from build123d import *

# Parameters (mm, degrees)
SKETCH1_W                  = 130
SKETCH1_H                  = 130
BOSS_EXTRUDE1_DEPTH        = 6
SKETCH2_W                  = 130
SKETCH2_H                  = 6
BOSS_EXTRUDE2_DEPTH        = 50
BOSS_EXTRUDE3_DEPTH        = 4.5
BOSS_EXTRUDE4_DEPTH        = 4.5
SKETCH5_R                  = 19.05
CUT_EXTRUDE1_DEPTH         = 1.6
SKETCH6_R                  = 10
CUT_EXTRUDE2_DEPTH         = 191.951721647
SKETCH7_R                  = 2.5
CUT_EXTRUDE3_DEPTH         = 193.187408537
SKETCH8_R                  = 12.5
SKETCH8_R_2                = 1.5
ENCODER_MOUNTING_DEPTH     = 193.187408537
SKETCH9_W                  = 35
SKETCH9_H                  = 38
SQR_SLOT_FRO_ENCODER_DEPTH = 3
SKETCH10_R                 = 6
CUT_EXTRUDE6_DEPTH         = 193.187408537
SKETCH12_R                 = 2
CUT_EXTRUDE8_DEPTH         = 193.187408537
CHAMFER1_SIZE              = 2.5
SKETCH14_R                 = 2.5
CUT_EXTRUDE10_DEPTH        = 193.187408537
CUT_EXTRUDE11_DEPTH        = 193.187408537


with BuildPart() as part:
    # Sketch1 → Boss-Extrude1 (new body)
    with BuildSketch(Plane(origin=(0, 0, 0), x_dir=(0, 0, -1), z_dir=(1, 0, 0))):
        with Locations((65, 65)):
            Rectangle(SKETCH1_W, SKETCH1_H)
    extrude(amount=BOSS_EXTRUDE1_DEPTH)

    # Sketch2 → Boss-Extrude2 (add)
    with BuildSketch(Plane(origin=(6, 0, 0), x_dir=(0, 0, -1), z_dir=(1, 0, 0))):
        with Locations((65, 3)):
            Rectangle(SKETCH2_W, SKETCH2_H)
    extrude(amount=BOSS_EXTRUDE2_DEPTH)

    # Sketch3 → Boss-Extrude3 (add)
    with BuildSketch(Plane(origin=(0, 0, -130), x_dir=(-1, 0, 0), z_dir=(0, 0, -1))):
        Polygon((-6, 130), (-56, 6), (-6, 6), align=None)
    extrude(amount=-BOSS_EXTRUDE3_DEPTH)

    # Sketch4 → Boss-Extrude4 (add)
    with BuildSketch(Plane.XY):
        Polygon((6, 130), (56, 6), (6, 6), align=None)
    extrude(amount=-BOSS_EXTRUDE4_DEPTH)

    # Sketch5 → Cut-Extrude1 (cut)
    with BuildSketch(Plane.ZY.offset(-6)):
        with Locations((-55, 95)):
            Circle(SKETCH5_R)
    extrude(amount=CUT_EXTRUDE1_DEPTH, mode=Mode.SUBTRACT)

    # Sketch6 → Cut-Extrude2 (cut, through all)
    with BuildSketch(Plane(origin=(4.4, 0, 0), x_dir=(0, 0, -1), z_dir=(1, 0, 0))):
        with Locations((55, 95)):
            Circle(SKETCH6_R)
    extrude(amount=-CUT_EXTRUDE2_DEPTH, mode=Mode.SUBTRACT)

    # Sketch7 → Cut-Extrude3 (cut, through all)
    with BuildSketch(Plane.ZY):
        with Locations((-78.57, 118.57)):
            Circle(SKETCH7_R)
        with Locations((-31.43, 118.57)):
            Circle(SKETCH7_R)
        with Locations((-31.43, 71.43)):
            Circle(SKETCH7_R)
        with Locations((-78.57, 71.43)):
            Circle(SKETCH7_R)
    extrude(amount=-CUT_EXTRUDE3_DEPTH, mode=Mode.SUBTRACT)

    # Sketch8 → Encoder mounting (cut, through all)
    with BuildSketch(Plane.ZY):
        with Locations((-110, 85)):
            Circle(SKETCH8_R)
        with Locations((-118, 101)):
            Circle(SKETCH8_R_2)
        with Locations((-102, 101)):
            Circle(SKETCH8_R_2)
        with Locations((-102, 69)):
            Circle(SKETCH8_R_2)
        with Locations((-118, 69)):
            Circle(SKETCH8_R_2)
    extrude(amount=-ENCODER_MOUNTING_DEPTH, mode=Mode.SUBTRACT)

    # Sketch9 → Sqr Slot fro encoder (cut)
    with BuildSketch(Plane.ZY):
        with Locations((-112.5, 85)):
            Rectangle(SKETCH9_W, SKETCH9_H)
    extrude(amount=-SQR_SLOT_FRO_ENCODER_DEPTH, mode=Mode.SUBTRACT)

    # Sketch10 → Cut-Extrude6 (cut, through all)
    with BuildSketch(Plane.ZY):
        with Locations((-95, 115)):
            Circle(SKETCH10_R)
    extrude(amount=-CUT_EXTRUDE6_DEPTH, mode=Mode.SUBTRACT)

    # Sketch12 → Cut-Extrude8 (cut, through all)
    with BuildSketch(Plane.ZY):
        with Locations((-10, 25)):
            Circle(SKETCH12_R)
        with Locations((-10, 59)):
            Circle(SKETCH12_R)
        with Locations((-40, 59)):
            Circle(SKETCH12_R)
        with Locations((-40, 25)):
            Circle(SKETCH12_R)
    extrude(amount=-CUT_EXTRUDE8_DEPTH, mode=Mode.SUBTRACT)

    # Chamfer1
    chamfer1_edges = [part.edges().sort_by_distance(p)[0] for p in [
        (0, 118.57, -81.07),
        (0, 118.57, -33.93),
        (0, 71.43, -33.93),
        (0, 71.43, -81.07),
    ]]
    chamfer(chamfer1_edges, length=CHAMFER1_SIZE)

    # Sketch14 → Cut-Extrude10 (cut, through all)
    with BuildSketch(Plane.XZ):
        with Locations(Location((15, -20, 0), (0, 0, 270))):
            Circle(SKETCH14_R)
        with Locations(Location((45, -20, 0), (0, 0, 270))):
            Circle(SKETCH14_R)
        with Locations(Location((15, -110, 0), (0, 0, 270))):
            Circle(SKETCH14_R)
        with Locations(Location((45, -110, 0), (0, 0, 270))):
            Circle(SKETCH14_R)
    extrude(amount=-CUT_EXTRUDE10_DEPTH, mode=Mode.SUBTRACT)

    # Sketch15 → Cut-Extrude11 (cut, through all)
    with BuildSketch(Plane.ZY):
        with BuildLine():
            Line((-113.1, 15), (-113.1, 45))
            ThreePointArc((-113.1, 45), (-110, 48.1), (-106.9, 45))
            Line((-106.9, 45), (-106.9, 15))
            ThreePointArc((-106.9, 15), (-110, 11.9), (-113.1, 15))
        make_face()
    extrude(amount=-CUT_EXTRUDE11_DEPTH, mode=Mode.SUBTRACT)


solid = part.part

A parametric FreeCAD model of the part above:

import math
import FreeCAD as App
import Part
import Sketcher

V = App.Vector


def edges_at(feature, points):
    """Names of the edges that pass closest to the given points."""
    edges = feature.Shape.Edges
    near = lambda p: min(range(len(edges)), key=lambda i: edges[i].distToShape(Part.Vertex(*p))[0])
    return sorted({f"Edge{near(p) + 1}" for p in points})

doc = App.newDocument("Part")
body = doc.addObject("PartDesign::Body", "Body")

sketch1 = doc.addObject("Sketcher::SketchObject", "Sketch")
body.addObject(sketch1)
sketch1.AttachmentSupport = (doc.YZ_Plane, [""])
sketch1.MapMode = "FlatFace"
sketch1.addGeometry([
    Part.LineSegment(V(130, 0, 0), V(0, 0, 0)),
    Part.LineSegment(V(0, 0, 0), V(0, -130, 0)),
    Part.LineSegment(V(0, -130, 0), V(130, -130, 0)),
    Part.LineSegment(V(130, -130, 0), V(130, 0, 0)),
], False)
sketch1.addConstraint([
    Sketcher.Constraint("Coincident", 0, 2, 1, 1),
    Sketcher.Constraint("Coincident", 1, 2, 2, 1),
    Sketcher.Constraint("Coincident", 2, 2, 3, 1),
    Sketcher.Constraint("Coincident", 3, 2, 0, 1),
    Sketcher.Constraint("Horizontal", 0),
    Sketcher.Constraint("Vertical", 1),
    Sketcher.Constraint("Horizontal", 2),
    Sketcher.Constraint("Vertical", 3),
    Sketcher.Constraint("Coincident", 0, 2, -1, 1),
    Sketcher.Constraint("Equal", 2, 1),
    Sketcher.Constraint("DistanceX", 0, 2, 0, 1, 130.0),
])
pad1 = doc.addObject("PartDesign::Pad", "Pad")
body.addObject(pad1)
pad1.Profile = sketch1
pad1.Length = 6

sketch2 = doc.addObject("Sketcher::SketchObject", "Sketch001")
body.addObject(sketch2)
sketch2.AttachmentSupport = (doc.YZ_Plane, [""])
sketch2.MapMode = "FlatFace"
sketch2.AttachmentOffset = App.Placement(V(0, 0, 6), App.Rotation())
sketch2.addGeometry([
    Part.LineSegment(V(6, 0, 0), V(0, 0, 0)),
    Part.LineSegment(V(0, 0, 0), V(0, -130, 0)),
    Part.LineSegment(V(0, -130, 0), V(6, -130, 0)),
    Part.LineSegment(V(6, -130, 0), V(6, 0, 0)),
], False)
sketch2.addConstraint([
    Sketcher.Constraint("Coincident", 0, 2, 1, 1),
    Sketcher.Constraint("Coincident", 1, 2, 2, 1),
    Sketcher.Constraint("Coincident", 2, 2, 3, 1),
    Sketcher.Constraint("Coincident", 3, 2, 0, 1),
    Sketcher.Constraint("Horizontal", 0),
    Sketcher.Constraint("Vertical", 1),
    Sketcher.Constraint("Horizontal", 2),
    Sketcher.Constraint("Vertical", 3),
    Sketcher.Constraint("Coincident", 0, 2, -1, 1),
    Sketcher.Constraint("DistanceX", 0, 2, 0, 1, 6.0),
    Sketcher.Constraint("DistanceY", 1, 2, 1, 1, 130.0),
])
pad2 = doc.addObject("PartDesign::Pad", "Pad001")
body.addObject(pad2)
pad2.Profile = sketch2
pad2.Length = 50

sketch3 = doc.addObject("Sketcher::SketchObject", "Sketch002")
body.addObject(sketch3)
sketch3.AttachmentSupport = (doc.XY_Plane, [""])
sketch3.MapMode = "FlatFace"
sketch3.AttachmentOffset = App.Placement(V(0, 0, -130), App.Rotation())
sketch3.addGeometry([
    Part.LineSegment(V(6, 130, 0), V(56, 6, 0)),
    Part.LineSegment(V(56, 6, 0), V(6, 6, 0)),
    Part.LineSegment(V(6, 6, 0), V(6, 130, 0)),
], False)
sketch3.addConstraint([
    Sketcher.Constraint("Coincident", 0, 2, 1, 1),
    Sketcher.Constraint("Coincident", 1, 2, 2, 1),
    Sketcher.Constraint("Coincident", 2, 2, 0, 1),
    Sketcher.Constraint("Horizontal", 1),
    Sketcher.Constraint("Vertical", 2),
    Sketcher.Constraint("DistanceX", 1, 2, 1, 1, 50.0),
    Sketcher.Constraint("DistanceY", 2, 1, 2, 2, 124.0),
    Sketcher.Constraint("DistanceX", -1, 1, 0, 2, 56.0),
    Sketcher.Constraint("DistanceY", -1, 1, 0, 2, 6.0),
])
pad3 = doc.addObject("PartDesign::Pad", "Pad002")
body.addObject(pad3)
pad3.Profile = sketch3
pad3.Length = 4.5

sketch4 = doc.addObject("Sketcher::SketchObject", "Sketch003")
body.addObject(sketch4)
sketch4.AttachmentSupport = (doc.XY_Plane, [""])
sketch4.MapMode = "FlatFace"
sketch4.addGeometry([
    Part.LineSegment(V(56, 6, 0), V(6, 130, 0)),
    Part.LineSegment(V(6, 130, 0), V(6, 6, 0)),
    Part.LineSegment(V(6, 6, 0), V(56, 6, 0)),
], False)
sketch4.addConstraint([
    Sketcher.Constraint("Coincident", 0, 2, 1, 1),
    Sketcher.Constraint("Coincident", 1, 2, 2, 1),
    Sketcher.Constraint("Coincident", 2, 2, 0, 1),
    Sketcher.Constraint("Vertical", 1),
    Sketcher.Constraint("Horizontal", 2),
    Sketcher.Constraint("DistanceX", 2, 1, 2, 2, 50.0),
    Sketcher.Constraint("DistanceY", 1, 2, 1, 1, 124.0),
    Sketcher.Constraint("DistanceX", -1, 1, 0, 2, 6.0),
    Sketcher.Constraint("DistanceY", -1, 1, 0, 2, 130.0),
])
pad4 = doc.addObject("PartDesign::Pad", "Pad003")
body.addObject(pad4)
pad4.Profile = sketch4
pad4.Length = 4.5
pad4.Reversed = True

sketch5 = doc.addObject("Sketcher::SketchObject", "Sketch004")
body.addObject(sketch5)
sketch5.AttachmentSupport = (doc.YZ_Plane, [""])
sketch5.MapMode = "FlatFace"
sketch5.AttachmentOffset = App.Placement(V(0, 0, 6), App.Rotation())
sketch5.addGeometry(Part.Circle(V(95, -55, 0), V(0, 0, 1), 19.05), False)
sketch5.addConstraint([
    Sketcher.Constraint("Diameter", 0, 38.1),
    Sketcher.Constraint("DistanceX", -1, 1, 0, 3, 95.0),
    Sketcher.Constraint("DistanceY", 0, 3, -1, 1, 55.0),
])
pocket1 = doc.addObject("PartDesign::Pocket", "Pocket")
body.addObject(pocket1)
pocket1.Profile = sketch5
pocket1.Length = 1.6

sketch6 = doc.addObject("Sketcher::SketchObject", "Sketch005")
body.addObject(sketch6)
sketch6.AttachmentSupport = (doc.YZ_Plane, [""])
sketch6.MapMode = "FlatFace"
sketch6.AttachmentOffset = App.Placement(V(0, 0, 4.4), App.Rotation())
sketch6.addGeometry(Part.Circle(V(95, -55, 0), V(0, 0, 1), 10), False)
sketch6.addConstraint([
    Sketcher.Constraint("Diameter", 0, 20.0),
    Sketcher.Constraint("DistanceX", -1, 1, 0, 3, 95.0),
    Sketcher.Constraint("DistanceY", 0, 3, -1, 1, 55.0),
])
pocket2 = doc.addObject("PartDesign::Pocket", "Pocket001")
body.addObject(pocket2)
pocket2.Profile = sketch6
pocket2.Type = "ThroughAll"

sketch7 = doc.addObject("Sketcher::SketchObject", "Sketch006")
body.addObject(sketch7)
sketch7.AttachmentSupport = (doc.YZ_Plane, [""])
sketch7.MapMode = "FlatFace"
sketch7.addGeometry([
    Part.Circle(V(118.57, -78.57, 0), V(0, 0, 1), 2.5),
    Part.Circle(V(118.57, -31.43, 0), V(0, 0, 1), 2.5),
    Part.Circle(V(71.43, -31.43, 0), V(0, 0, 1), 2.5),
    Part.Circle(V(71.43, -78.57, 0), V(0, 0, 1), 2.5),
], False)
sketch7.addConstraint([
    Sketcher.Constraint("Equal", 0, 1),
    Sketcher.Constraint("Equal", 1, 2),
    Sketcher.Constraint("Equal", 2, 3),
    Sketcher.Constraint("Horizontal", 1, 3, 2, 3),
    Sketcher.Constraint("Horizontal", 0, 3, 3, 3),
    Sketcher.Constraint("Vertical", 0, 3, 1, 3),
    Sketcher.Constraint("Vertical", 2, 3, 3, 3),
    Sketcher.Constraint("Diameter", 0, 5.0),
    Sketcher.Constraint("DistanceX", -1, 1, 0, 3, 118.57),
    Sketcher.Constraint("DistanceY", 0, 3, -1, 1, 78.57),
    Sketcher.Constraint("DistanceY", 1, 3, -1, 1, 31.43),
    Sketcher.Constraint("DistanceX", -1, 1, 2, 3, 71.43),
])
pocket3 = doc.addObject("PartDesign::Pocket", "Pocket002")
body.addObject(pocket3)
pocket3.Profile = sketch7
pocket3.Type = "ThroughAll"
pocket3.Reversed = True

sketch8 = doc.addObject("Sketcher::SketchObject", "Sketch007")
body.addObject(sketch8)
sketch8.AttachmentSupport = (doc.YZ_Plane, [""])
sketch8.MapMode = "FlatFace"
sketch8.addGeometry([
    Part.Circle(V(85, -110, 0), V(0, 0, 1), 12.5),
    Part.Circle(V(101, -118, 0), V(0, 0, 1), 1.5),
    Part.Circle(V(101, -102, 0), V(0, 0, 1), 1.5),
    Part.Circle(V(69, -102, 0), V(0, 0, 1), 1.5),
    Part.Circle(V(69, -118, 0), V(0, 0, 1), 1.5),
], False)
sketch8.addConstraint([
    Sketcher.Constraint("Equal", 1, 2),
    Sketcher.Constraint("Equal", 2, 3),
    Sketcher.Constraint("Equal", 3, 4),
    Sketcher.Constraint("Horizontal", 2, 3, 3, 3),
    Sketcher.Constraint("Horizontal", 1, 3, 4, 3),
    Sketcher.Constraint("Vertical", 1, 3, 2, 3),
    Sketcher.Constraint("Vertical", 3, 3, 4, 3),
    Sketcher.Constraint("Diameter", 0, 25.0),
    Sketcher.Constraint("Diameter", 1, 3.0),
    Sketcher.Constraint("DistanceX", -1, 1, 0, 3, 85.0),
    Sketcher.Constraint("DistanceY", 0, 3, -1, 1, 110.0),
    Sketcher.Constraint("DistanceX", -1, 1, 1, 3, 101.0),
    Sketcher.Constraint("DistanceY", 1, 3, -1, 1, 118.0),
    Sketcher.Constraint("DistanceY", 2, 3, -1, 1, 102.0),
    Sketcher.Constraint("DistanceX", -1, 1, 3, 3, 69.0),
])
pocket4 = doc.addObject("PartDesign::Pocket", "Pocket003")
body.addObject(pocket4)
pocket4.Profile = sketch8
pocket4.Type = "ThroughAll"
pocket4.Reversed = True

sketch9 = doc.addObject("Sketcher::SketchObject", "Sketch008")
body.addObject(sketch9)
sketch9.AttachmentSupport = (doc.YZ_Plane, [""])
sketch9.MapMode = "FlatFace"
sketch9.addGeometry([
    Part.LineSegment(V(104, -130, 0), V(66, -130, 0)),
    Part.LineSegment(V(66, -130, 0), V(66, -95, 0)),
    Part.LineSegment(V(66, -95, 0), V(104, -95, 0)),
    Part.LineSegment(V(104, -95, 0), V(104, -130, 0)),
], False)
sketch9.addConstraint([
    Sketcher.Constraint("Coincident", 0, 2, 1, 1),
    Sketcher.Constraint("Coincident", 1, 2, 2, 1),
    Sketcher.Constraint("Coincident", 2, 2, 3, 1),
    Sketcher.Constraint("Coincident", 3, 2, 0, 1),
    Sketcher.Constraint("Horizontal", 0),
    Sketcher.Constraint("Vertical", 1),
    Sketcher.Constraint("Horizontal", 2),
    Sketcher.Constraint("Vertical", 3),
    Sketcher.Constraint("DistanceX", 0, 2, 0, 1, 38.0),
    Sketcher.Constraint("DistanceY", 1, 1, 1, 2, 35.0),
    Sketcher.Constraint("DistanceX", -1, 1, 0, 2, 66.0),
    Sketcher.Constraint("DistanceY", 0, 2, -1, 1, 130.0),
])
pocket5 = doc.addObject("PartDesign::Pocket", "Pocket004")
body.addObject(pocket5)
pocket5.Profile = sketch9
pocket5.Length = 3
pocket5.Reversed = True

sketch10 = doc.addObject("Sketcher::SketchObject", "Sketch009")
body.addObject(sketch10)
sketch10.AttachmentSupport = (doc.YZ_Plane, [""])
sketch10.MapMode = "FlatFace"
sketch10.addGeometry(Part.Circle(V(115, -95, 0), V(0, 0, 1), 6), False)
sketch10.addConstraint([
    Sketcher.Constraint("Diameter", 0, 12.0),
    Sketcher.Constraint("DistanceX", -1, 1, 0, 3, 115.0),
    Sketcher.Constraint("DistanceY", 0, 3, -1, 1, 95.0),
])
pocket6 = doc.addObject("PartDesign::Pocket", "Pocket005")
body.addObject(pocket6)
pocket6.Profile = sketch10
pocket6.Type = "ThroughAll"
pocket6.Reversed = True

sketch11 = doc.addObject("Sketcher::SketchObject", "Sketch010")
body.addObject(sketch11)
sketch11.AttachmentSupport = (doc.YZ_Plane, [""])
sketch11.MapMode = "FlatFace"
sketch11.addGeometry([
    Part.Circle(V(25, -10, 0), V(0, 0, 1), 2),
    Part.Circle(V(59, -10, 0), V(0, 0, 1), 2),
    Part.Circle(V(59, -40, 0), V(0, 0, 1), 2),
    Part.Circle(V(25, -40, 0), V(0, 0, 1), 2),
], False)
sketch11.addConstraint([
    Sketcher.Constraint("Equal", 0, 1),
    Sketcher.Constraint("Equal", 1, 2),
    Sketcher.Constraint("Equal", 2, 3),
    Sketcher.Constraint("Horizontal", 0, 3, 1, 3),
    Sketcher.Constraint("Horizontal", 2, 3, 3, 3),
    Sketcher.Constraint("Vertical", 1, 3, 2, 3),
    Sketcher.Constraint("Vertical", 0, 3, 3, 3),
    Sketcher.Constraint("Diameter", 0, 4.0),
    Sketcher.Constraint("DistanceX", -1, 1, 0, 3, 25.0),
    Sketcher.Constraint("DistanceY", 0, 3, -1, 1, 10.0),
    Sketcher.Constraint("DistanceX", -1, 1, 1, 3, 59.0),
    Sketcher.Constraint("DistanceY", 2, 3, -1, 1, 40.0),
])
pocket7 = doc.addObject("PartDesign::Pocket", "Pocket006")
body.addObject(pocket7)
pocket7.Profile = sketch11
pocket7.Type = "ThroughAll"
pocket7.Reversed = True
doc.recompute()

chamfer = doc.addObject("PartDesign::Chamfer", "Chamfer")
body.addObject(chamfer)
chamfer.Base = (pocket7, edges_at(pocket7, [
    (0, 118.57, -81.07),
    (0, 118.57, -33.93),
    (0, 71.43, -33.93),
    (0, 71.43, -81.07),
]))
chamfer.Size = 2.5

sketch12 = doc.addObject("Sketcher::SketchObject", "Sketch011")
body.addObject(sketch12)
sketch12.AttachmentSupport = (doc.XZ_Plane, [""])
sketch12.MapMode = "FlatFace"
sketch12.addGeometry([
    Part.Circle(V(15, -20, 0), V(0, 0, 1), 2.5),
    Part.Circle(V(45, -20, 0), V(0, 0, 1), 2.5),
    Part.Circle(V(15, -110, 0), V(0, 0, 1), 2.5),
    Part.Circle(V(45, -110, 0), V(0, 0, 1), 2.5),
], False)
sketch12.addConstraint([
    Sketcher.Constraint("Equal", 0, 1),
    Sketcher.Constraint("Equal", 1, 2),
    Sketcher.Constraint("Equal", 2, 3),
    Sketcher.Constraint("Horizontal", 0, 3, 1, 3),
    Sketcher.Constraint("Horizontal", 2, 3, 3, 3),
    Sketcher.Constraint("Vertical", 0, 3, 2, 3),
    Sketcher.Constraint("Vertical", 1, 3, 3, 3),
    Sketcher.Constraint("Diameter", 0, 5.0),
    Sketcher.Constraint("DistanceX", -1, 1, 0, 3, 15.0),
    Sketcher.Constraint("DistanceY", 0, 3, -1, 1, 20.0),
    Sketcher.Constraint("DistanceX", -1, 1, 1, 3, 45.0),
    Sketcher.Constraint("DistanceY", 2, 3, -1, 1, 110.0),
])
pocket8 = doc.addObject("PartDesign::Pocket", "Pocket007")
body.addObject(pocket8)
pocket8.Profile = sketch12
pocket8.Type = "ThroughAll"

sketch13 = doc.addObject("Sketcher::SketchObject", "Sketch012")
body.addObject(sketch13)
sketch13.AttachmentSupport = (doc.YZ_Plane, [""])
sketch13.MapMode = "FlatFace"
sketch13.addGeometry([
    Part.LineSegment(V(45, -113.1, 0), V(15, -113.1, 0)),
    Part.ArcOfCircle(Part.Circle(V(15, -110, 0), V(0, 0, 1), 3.1), math.radians(90), math.radians(270)),
    Part.LineSegment(V(15, -106.9, 0), V(45, -106.9, 0)),
    Part.ArcOfCircle(Part.Circle(V(45, -110, 0), V(0, 0, 1), 3.1), math.radians(-90), math.radians(90)),
], False)
sketch13.addConstraint([
    Sketcher.Constraint("Tangent", 0, 2, 1, 2),
    Sketcher.Constraint("Tangent", 1, 1, 2, 1),
    Sketcher.Constraint("Tangent", 2, 2, 3, 2),
    Sketcher.Constraint("Tangent", 3, 1, 0, 1),
    Sketcher.Constraint("Horizontal", 0),
    Sketcher.Constraint("Horizontal", 2),
    Sketcher.Constraint("Radius", 1, 3.1),
    Sketcher.Constraint("DistanceX", 0, 2, 0, 1, 30.0),
    Sketcher.Constraint("DistanceX", -1, 1, 1, 3, 15.0),
    Sketcher.Constraint("DistanceY", 1, 3, -1, 1, 110.0),
])
pocket9 = doc.addObject("PartDesign::Pocket", "Pocket008")
body.addObject(pocket9)
pocket9.Profile = sketch13
pocket9.Type = "ThroughAll"
pocket9.Reversed = True

doc.recompute()
